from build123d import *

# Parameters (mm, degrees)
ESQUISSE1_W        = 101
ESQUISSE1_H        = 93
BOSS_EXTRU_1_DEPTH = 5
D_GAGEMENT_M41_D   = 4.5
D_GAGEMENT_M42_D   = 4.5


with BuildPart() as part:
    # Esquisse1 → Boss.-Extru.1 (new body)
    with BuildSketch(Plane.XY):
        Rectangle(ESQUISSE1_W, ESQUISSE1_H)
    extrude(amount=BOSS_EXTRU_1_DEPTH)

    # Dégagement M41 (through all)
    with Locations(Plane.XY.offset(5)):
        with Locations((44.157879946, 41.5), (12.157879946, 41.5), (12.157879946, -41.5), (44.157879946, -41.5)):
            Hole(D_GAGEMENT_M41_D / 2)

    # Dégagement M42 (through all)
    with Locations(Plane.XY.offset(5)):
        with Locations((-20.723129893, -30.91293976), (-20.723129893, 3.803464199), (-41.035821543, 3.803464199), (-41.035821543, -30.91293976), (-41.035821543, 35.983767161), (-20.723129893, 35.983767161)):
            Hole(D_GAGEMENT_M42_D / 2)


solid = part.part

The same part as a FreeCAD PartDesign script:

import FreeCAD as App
import Part
import Sketcher
from FreeCAD import Vector


def add_polygon(sketch, points):
    """Adds a closed chain of lines whose ends are joined by coincident constraints."""
    first, n = sketch.GeometryCount, len(points)
    for a, b in zip(points, points[1:] + points[:1]):
        sketch.addGeometry(Part.LineSegment(App.Vector(*a, 0), App.Vector(*b, 0)), False)
    for i in range(n):
        sketch.addConstraint(Sketcher.Constraint("Coincident", first + i, 2, first + (i + 1) % n, 1))

doc = App.newDocument("Part")
body = doc.addObject("PartDesign::Body", "Body")

sketch1 = body.newObject("Sketcher::SketchObject", "Sketch")
sketch1.AttachmentSupport = (doc.getObject("XY_Plane"), [""])
sketch1.MapMode = "FlatFace"
add_polygon(sketch1, [(-50, 46), (-50, -46), (50, -46), (50, 46)])
sketch1.addConstraint([
    Sketcher.Constraint("Vertical", 0),
    Sketcher.Constraint("Horizontal", 1),
    Sketcher.Constraint("Vertical", 2),
    Sketcher.Constraint("Horizontal", 3),
    Sketcher.Constraint("Symmetric", 0, 2, 2, 2, -1, 1),
    Sketcher.Constraint("DistanceX", 1, 1, 1, 2, 101.0),
    Sketcher.Constraint("DistanceY", 0, 2, 0, 1, 93.0),
])
pad1 = body.newObject("PartDesign::Pad", "Pad")
pad1.Profile = sketch1
pad1.Length = 5

sketch2 = body.newObject("Sketcher::SketchObject", "Sketch001")
sketch2.AttachmentSupport = (doc.getObject("XY_Plane"), [""])
sketch2.MapMode = "FlatFace"
sketch2.AttachmentOffset = App.Placement(Vector(0, 0, 5), App.Rotation())
sketch2.addGeometry([
    Part.Circle(Vector(44.2, 41.5, 0), Vector(0, 0, 1), 2.2),
    Part.Circle(Vector(12.2, 41.5, 0), Vector(0, 0, 1), 2.2),
    Part.Circle(Vector(12.2, -41.5, 0), Vector(0, 0, 1), 2.2),
    Part.Circle(Vector(44.2, -41.5, 0), Vector(0, 0, 1), 2.2),
], False)
sketch2.addConstraint([
    Sketcher.Constraint("Equal", 0, 1),
    Sketcher.Constraint("Equal", 1, 2),
    Sketcher.Constraint("Equal", 2, 3),
    Sketcher.Constraint("Symmetric", 1, 3, 2, 3, -1),
    Sketcher.Constraint("Symmetric", 0, 3, 3, 3, -1),
    Sketcher.Constraint("Horizontal", 0, 3, 1, 3),
    Sketcher.Constraint("Diameter", 0, 4.5),
    Sketcher.Constraint("DistanceX", 1, 3, 0, 3, 32.0),
    Sketcher.Constraint("DistanceY", 2, 3, 1, 3, 83.0),
    Sketcher.Constraint("DistanceX", -1, 1, 0, 3, 44.15788),
])
doc.recompute()
hole = body.newObject("PartDesign::Hole", "Hole")
hole.Profile = sketch2
hole.ThreadType = "None"
hole.Diameter = 4.5
hole.DepthType = "ThroughAll"

sketch3 = body.newObject("Sketcher::SketchObject", "Sketch002")
sketch3.AttachmentSupport = (doc.getObject("XY_Plane"), [""])
sketch3.MapMode = "FlatFace"
sketch3.AttachmentOffset = App.Placement(Vector(0, 0, 5), App.Rotation())
sketch3.addGeometry([
    Part.Circle(Vector(-20.7, -30.9, 0), Vector(0, 0, 1), 2.2),
    Part.Circle(Vector(-20.7, 3.8, 0), Vector(0, 0, 1), 2.2),
    Part.Circle(Vector(-41, 3.8, 0), Vector(0, 0, 1), 2.2),
    Part.Circle(Vector(-41, -30.9, 0), Vector(0, 0, 1), 2.2),
    Part.Circle(Vector(-41, 36, 0), Vector(0, 0, 1), 2.2),
    Part.Circle(Vector(-20.7, 36, 0), Vector(0, 0, 1), 2.2),
], False)
sketch3.addConstraint([
    Sketcher.Constraint("Equal", 0, 1),
    Sketcher.Constraint("Equal", 1, 2),
    Sketcher.Constraint("Equal", 2, 3),
    Sketcher.Constraint("Equal", 3, 4),
    Sketcher.Constraint("Equal", 4, 5),
    Sketcher.Constraint("Horizontal", 1, 3, 2, 3),
    Sketcher.Constraint("Horizontal", 0, 3, 3, 3),
    Sketcher.Constraint("Horizontal", 4, 3, 5, 3),
    Sketcher.Constraint("Vertical", 0, 3, 1, 3),
    Sketcher.Constraint("Vertical", 2, 3, 3, 3),
    Sketcher.Constraint("Vertical", 3, 3, 4, 3),
    Sketcher.Constraint("Vertical", 1, 3, 5, 3),
    Sketcher.Constraint("Diameter", 0, 4.5),
    Sketcher.Constraint("DistanceX", 0, 3, -1, 1, 20.72313),
    Sketcher.Constraint("DistanceY", 0, 3, -1, 1, 30.91294),
    Sketcher.Constraint("DistanceX", 2, 3, -1, 1, 41.035822),
    Sketcher.Constraint("DistanceY", -1, 1, 1, 3, 3.803464),
    Sketcher.Constraint("DistanceY", -1, 1, 4, 3, 35.983767),
])
doc.recompute()
hole2 = body.newObject("PartDesign::Hole", "Hole001")
hole2.Profile = sketch3
hole2.ThreadType = "None"
hole2.Diameter = 4.5
hole2.DepthType = "ThroughAll"

doc.recompute()
